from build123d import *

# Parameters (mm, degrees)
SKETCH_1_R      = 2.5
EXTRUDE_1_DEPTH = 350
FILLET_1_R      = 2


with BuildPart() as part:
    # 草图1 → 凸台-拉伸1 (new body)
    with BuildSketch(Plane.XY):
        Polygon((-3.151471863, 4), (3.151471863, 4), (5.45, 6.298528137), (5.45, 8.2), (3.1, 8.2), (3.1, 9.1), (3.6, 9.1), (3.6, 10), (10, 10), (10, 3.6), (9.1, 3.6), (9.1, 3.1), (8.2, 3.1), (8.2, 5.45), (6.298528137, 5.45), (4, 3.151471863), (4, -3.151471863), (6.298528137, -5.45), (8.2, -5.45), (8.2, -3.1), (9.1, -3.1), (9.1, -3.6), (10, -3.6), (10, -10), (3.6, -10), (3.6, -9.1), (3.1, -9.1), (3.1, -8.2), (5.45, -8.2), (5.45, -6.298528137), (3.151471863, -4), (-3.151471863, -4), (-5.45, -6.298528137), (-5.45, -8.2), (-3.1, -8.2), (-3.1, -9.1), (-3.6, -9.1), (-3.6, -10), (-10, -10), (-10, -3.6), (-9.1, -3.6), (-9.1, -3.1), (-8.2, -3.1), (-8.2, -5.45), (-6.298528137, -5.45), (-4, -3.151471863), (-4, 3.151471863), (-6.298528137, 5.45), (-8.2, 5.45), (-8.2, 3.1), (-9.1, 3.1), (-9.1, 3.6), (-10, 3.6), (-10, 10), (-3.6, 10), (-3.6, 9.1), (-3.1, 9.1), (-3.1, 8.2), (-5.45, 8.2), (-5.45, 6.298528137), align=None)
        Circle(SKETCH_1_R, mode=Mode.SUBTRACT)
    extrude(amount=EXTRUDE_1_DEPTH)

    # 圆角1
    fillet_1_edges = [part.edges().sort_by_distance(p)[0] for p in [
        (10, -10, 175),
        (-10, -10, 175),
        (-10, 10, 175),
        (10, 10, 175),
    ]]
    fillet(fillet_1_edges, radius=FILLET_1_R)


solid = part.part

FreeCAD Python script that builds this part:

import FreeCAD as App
import Part
import Sketcher

V = App.Vector


def edges_at(feature, points):
    """Names of the edges that pass closest to the given points."""
    edges = feature.Shape.Edges
    near = lambda p: min(range(len(edges)), key=lambda i: edges[i].distToShape(Part.Vertex(*p))[0])
    return sorted({f"Edge{near(p) + 1}" for p in points})

doc = App.newDocument("Part")
body = doc.addObject("PartDesign::Body", "Body")

sketch1 = doc.addObject("Sketcher::SketchObject", "Sketch")
body.addObject(sketch1)
sketch1.AttachmentSupport = (doc.XY_Plane, [""])
sketch1.MapMode = "FlatFace"
sketch1.addGeometry([
    Part.LineSegment(V(3.2, 4, 0), V(-3.2, 4, 0)),
    Part.LineSegment(V(-3.2, 4, 0), V(-5.5, 6.3, 0)),
    Part.LineSegment(V(-5.5, 6.3, 0), V(-5.5, 8.2, 0)),
    Part.LineSegment(V(-5.5, 8.2, 0), V(-3.1, 8.2, 0)),
    Part.LineSegment(V(-3.1, 8.2, 0), V(-3.1, 9.1, 0)),
    Part.LineSegment(V(-3.1, 9.1, 0), V(-3.6, 9.1, 0)),
    Part.LineSegment(V(-3.6, 9.1, 0), V(-3.6, 10, 0)),
    Part.LineSegment(V(-3.6, 10, 0), V(-10, 10, 0)),
    Part.LineSegment(V(-10, 10, 0), V(-10, 3.6, 0)),
    Part.LineSegment(V(-10, 3.6, 0), V(-9.1, 3.6, 0)),
    Part.LineSegment(V(-9.1, 3.6, 0), V(-9.1, 3.1, 0)),
    Part.LineSegment(V(-9.1, 3.1, 0), V(-8.2, 3.1, 0)),
    Part.LineSegment(V(-8.2, 3.1, 0), V(-8.2, 5.5, 0)),
    Part.LineSegment(V(-8.2, 5.5, 0), V(-6.3, 5.5, 0)),
    Part.LineSegment(V(-6.3, 5.5, 0), V(-4, 3.2, 0)),
    Part.LineSegment(V(-4, 3.2, 0), V(-4, -3.2, 0)),
    Part.LineSegment(V(-4, -3.2, 0), V(-6.3, -5.5, 0)),
    Part.LineSegment(V(-6.3, -5.5, 0), V(-8.2, -5.5, 0)),
    Part.LineSegment(V(-8.2, -5.5, 0), V(-8.2, -3.1, 0)),
    Part.LineSegment(V(-8.2, -3.1, 0), V(-9.1, -3.1, 0)),
    Part.LineSegment(V(-9.1, -3.1, 0), V(-9.1, -3.6, 0)),
    Part.LineSegment(V(-9.1, -3.6, 0), V(-10, -3.6, 0)),
    Part.LineSegment(V(-10, -3.6, 0), V(-10, -10, 0)),
    Part.LineSegment(V(-10, -10, 0), V(-3.6, -10, 0)),
    Part.LineSegment(V(-3.6, -10, 0), V(-3.6, -9.1, 0)),
    Part.LineSegment(V(-3.6, -9.1, 0), V(-3.1, -9.1, 0)),
    Part.LineSegment(V(-3.1, -9.1, 0), V(-3.1, -8.2, 0)),
    Part.LineSegment(V(-3.1, -8.2, 0), V(-5.5, -8.2, 0)),
    Part.LineSegment(V(-5.5, -8.2, 0), V(-5.5, -6.3, 0)),
    Part.LineSegment(V(-5.5, -6.3, 0), V(-3.2, -4, 0)),
    Part.LineSegment(V(-3.2, -4, 0), V(3.2, -4, 0)),
    Part.LineSegment(V(3.2, -4, 0), V(5.5, -6.3, 0)),
    Part.LineSegment(V(5.5, -6.3, 0), V(5.5, -8.2, 0)),
    Part.LineSegment(V(5.5, -8.2, 0), V(3.1, -8.2, 0)),
    Part.LineSegment(V(3.1, -8.2, 0), V(3.1, -9.1, 0)),
    Part.LineSegment(V(3.1, -9.1, 0), V(3.6, -9.1, 0)),
    Part.LineSegment(V(3.6, -9.1, 0), V(3.6, -10, 0)),
    Part.LineSegment(V(3.6, -10, 0), V(10, -10, 0)),
    Part.LineSegment(V(10, -10, 0), V(10, -3.6, 0)),
    Part.LineSegment(V(10, -3.6, 0), V(9.1, -3.6, 0)),
    Part.LineSegment(V(9.1, -3.6, 0), V(9.1, -3.1, 0)),
    Part.LineSegment(V(9.1, -3.1, 0), V(8.2, -3.1, 0)),
    Part.LineSegment(V(8.2, -3.1, 0), V(8.2, -5.5, 0)),
    Part.LineSegment(V(8.2, -5.5, 0), V(6.3, -5.5, 0)),
    Part.LineSegment(V(6.3, -5.5, 0), V(4, -3.2, 0)),
    Part.LineSegment(V(4, -3.2, 0), V(4, 3.2, 0)),
    Part.LineSegment(V(4, 3.2, 0), V(6.3, 5.5, 0)),
    Part.LineSegment(V(6.3, 5.5, 0), V(8.2, 5.5, 0)),
    Part.LineSegment(V(8.2, 5.5, 0), V(8.2, 3.1, 0)),
    Part.LineSegment(V(8.2, 3.1, 0), V(9.1, 3.1, 0)),
    Part.LineSegment(V(9.1, 3.1, 0), V(9.1, 3.6, 0)),
    Part.LineSegment(V(9.1, 3.6, 0), V(10, 3.6, 0)),
    Part.LineSegment(V(10, 3.6, 0), V(10, 10, 0)),
    Part.LineSegment(V(10, 10, 0), V(3.6, 10, 0)),
    Part.LineSegment(V(3.6, 10, 0), V(3.6, 9.1, 0)),
    Part.LineSegment(V(3.6, 9.1, 0), V(3.1, 9.1, 0)),
    Part.LineSegment(V(3.1, 9.1, 0), V(3.1, 8.2, 0)),
    Part.LineSegment(V(3.1, 8.2, 0), V(5.5, 8.2, 0)),
    Part.LineSegment(V(5.5, 8.2, 0), V(5.5, 6.3, 0)),
    Part.LineSegment(V(5.5, 6.3, 0), V(3.2, 4, 0)),
    Part.Circle(V(0, 0, 0), V(0, 0, 1), 2.5),
], False)
sketch1.addConstraint([
    Sketcher.Constraint("Coincident", 0, 2, 1, 1),
    Sketcher.Constraint("Coincident", 1, 2, 2, 1),
    Sketcher.Constraint("Coincident", 2, 2, 3, 1),
    Sketcher.Constraint("Coincident", 3, 2, 4, 1),
    Sketcher.Constraint("Coincident", 4, 2, 5, 1),
    Sketcher.Constraint("Coincident", 5, 2, 6, 1),
    Sketcher.Constraint("Coincident", 6, 2, 7, 1),
    Sketcher.Constraint("Coincident", 7, 2, 8, 1),
    Sketcher.Constraint("Coincident", 8, 2, 9, 1),
    Sketcher.Constraint("Coincident", 9, 2, 10, 1),
    Sketcher.Constraint("Coincident", 10, 2, 11, 1),
    Sketcher.Constraint("Coincident", 11, 2, 12, 1),
    Sketcher.Constraint("Coincident", 12, 2, 13, 1),
    Sketcher.Constraint("Coincident", 13, 2, 14, 1),
    Sketcher.Constraint("Coincident", 14, 2, 15, 1),
    Sketcher.Constraint("Coincident", 15, 2, 16, 1),
    Sketcher.Constraint("Coincident", 16, 2, 17, 1),
    Sketcher.Constraint("Coincident", 17, 2, 18, 1),
    Sketcher.Constraint("Coincident", 18, 2, 19, 1),
    Sketcher.Constraint("Coincident", 19, 2, 20, 1),
    Sketcher.Constraint("Coincident", 20, 2, 21, 1),
    Sketcher.Constraint("Coincident", 21, 2, 22, 1),
    Sketcher.Constraint("Coincident", 22, 2, 23, 1),
    Sketcher.Constraint("Coincident", 23, 2, 24, 1),
    Sketcher.Constraint("Coincident", 24, 2, 25, 1),
    Sketcher.Constraint("Coincident", 25, 2, 26, 1),
    Sketcher.Constraint("Coincident", 26, 2, 27, 1),
    Sketcher.Constraint("Coincident", 27, 2, 28, 1),
    Sketcher.Constraint("Coincident", 28, 2, 29, 1),
    Sketcher.Constraint("Coincident", 29, 2, 30, 1),
    Sketcher.Constraint("Coincident", 30, 2, 31, 1),
    Sketcher.Constraint("Coincident", 31, 2, 32, 1),
    Sketcher.Constraint("Coincident", 32, 2, 33, 1),
    Sketcher.Constraint("Coincident", 33, 2, 34, 1),
    Sketcher.Constraint("Coincident", 34, 2, 35, 1),
    Sketcher.Constraint("Coincident", 35, 2, 36, 1),
    Sketcher.Constraint("Coincident", 36, 2, 37, 1),
    Sketcher.Constraint("Coincident", 37, 2, 38, 1),
    Sketcher.Constraint("Coincident", 38, 2, 39, 1),
    Sketcher.Constraint("Coincident", 39, 2, 40, 1),
    Sketcher.Constraint("Coincident", 40, 2, 41, 1),
    Sketcher.Constraint("Coincident", 41, 2, 42, 1),
    Sketcher.Constraint("Coincident", 42, 2, 43, 1),
    Sketcher.Constraint("Coincident", 43, 2, 44, 1),
    Sketcher.Constraint("Coincident", 44, 2, 45, 1),
    Sketcher.Constraint("Coincident", 45, 2, 46, 1),
    Sketcher.Constraint("Coincident", 46, 2, 47, 1),
    Sketcher.Constraint("Coincident", 47, 2, 48, 1),
    Sketcher.Constraint("Coincident", 48, 2, 49, 1),
    Sketcher.Constraint("Coincident", 49, 2, 50, 1),
    Sketcher.Constraint("Coincident", 50, 2, 51, 1),
    Sketcher.Constraint("Coincident", 51, 2, 52, 1),
    Sketcher.Constraint("Coincident", 52, 2, 53, 1),
    Sketcher.Constraint("Coincident", 53, 2, 54, 1),
    Sketcher.Constraint("Coincident", 54, 2, 55, 1),
    Sketcher.Constraint("Coincident", 55, 2, 56, 1),
    Sketcher.Constraint("Coincident", 56, 2, 57, 1),
    Sketcher.Constraint("Coincident", 57, 2, 58, 1),
    Sketcher.Constraint("Coincident", 58, 2, 59, 1),
    Sketcher.Constraint("Coincident", 59, 2, 0, 1),
    Sketcher.Constraint("Horizontal", 0),
    Sketcher.Constraint("Vertical", 2),
    Sketcher.Constraint("Horizontal", 3),
    Sketcher.Constraint("Vertical", 4),
    Sketcher.Constraint("Horizontal", 5),
    Sketcher.Constraint("Vertical", 6),
    Sketcher.Constraint("Horizontal", 7),
    Sketcher.Constraint("Vertical", 8),
    Sketcher.Constraint("Horizontal", 9),
    Sketcher.Constraint("Vertical", 10),
    Sketcher.Constraint("Horizontal", 11),
    Sketcher.Constraint("Vertical", 12),
    Sketcher.Constraint("Horizontal", 13),
    Sketcher.Constraint("Vertical", 15),
    Sketcher.Constraint("Horizontal", 17),
    Sketcher.Constraint("Vertical", 18),
    Sketcher.Constraint("Horizontal", 19),
    Sketcher.Constraint("Vertical", 20),
    Sketcher.Constraint("Horizontal", 21),
    Sketcher.Constraint("Vertical", 22),
    Sketcher.Constraint("Horizontal", 23),
    Sketcher.Constraint("Vertical", 24),
    Sketcher.Constraint("Horizontal", 25),
    Sketcher.Constraint("Vertical", 26),
    Sketcher.Constraint("Horizontal", 27),
    Sketcher.Constraint("Vertical", 28),
    Sketcher.Constraint("Horizontal", 30),
    Sketcher.Constraint("Vertical", 32),
    Sketcher.Constraint("Horizontal", 33),
    Sketcher.Constraint("Vertical", 34),
    Sketcher.Constraint("Horizontal", 35),
    Sketcher.Constraint("Vertical", 36),
    Sketcher.Constraint("Horizontal", 37),
    Sketcher.Constraint("Vertical", 38),
    Sketcher.Constraint("Horizontal", 39),
    Sketcher.Constraint("Vertical", 40),
    Sketcher.Constraint("Horizontal", 41),
    Sketcher.Constraint("Vertical", 42),
    Sketcher.Constraint("Horizontal", 43),
    Sketcher.Constraint("Vertical", 45),
    Sketcher.Constraint("Horizontal", 47),
    Sketcher.Constraint("Vertical", 48),
    Sketcher.Constraint("Horizontal", 49),
    Sketcher.Constraint("Vertical", 50),
    Sketcher.Constraint("Horizontal", 51),
    Sketcher.Constraint("Vertical", 52),
    Sketcher.Constraint("Horizontal", 53),
    Sketcher.Constraint("Vertical", 54),
    Sketcher.Constraint("Horizontal", 55),
    Sketcher.Constraint("Vertical", 56),
    Sketcher.Constraint("Horizontal", 57),
    Sketcher.Constraint("Vertical", 58),
    Sketcher.Constraint("Coincident", 60, 3, -1, 1),
    Sketcher.Constraint("Symmetric", 0, 2, 30, 2, -1, 1),
    Sketcher.Constraint("Symmetric", 1, 2, 31, 2, -1, 1),
    Sketcher.Constraint("Symmetric", 3, 2, 33, 2, -1, 1),
    Sketcher.Constraint("Symmetric", 5, 2, 35, 2, -1, 1),
    Sketcher.Constraint("Symmetric", 7, 2, 37, 2, -1, 1),
    Sketcher.Constraint("Symmetric", 9, 2, 39, 2, -1, 1),
    Sketcher.Constraint("Symmetric", 11, 2, 41, 2, -1, 1),
    Sketcher.Constraint("Symmetric", 13, 2, 43, 2, -1, 1),
    Sketcher.Constraint("Symmetric", 14, 2, 44, 2, -1, 1),
    Sketcher.Constraint("Symmetric", 16, 2, 46, 2, -1, 1),
    Sketcher.Constraint("Symmetric", 18, 2, 48, 2, -1, 1),
    Sketcher.Constraint("Symmetric", 20, 2, 50, 2, -1, 1),
    Sketcher.Constraint("Symmetric", 22, 2, 52, 2, -1, 1),
    Sketcher.Constraint("Symmetric", 24, 2, 54, 2, -1, 1),
    Sketcher.Constraint("Symmetric", 26, 2, 56, 2, -1, 1),
    Sketcher.Constraint("Symmetric", 28, 2, 58, 2, -1, 1),
    Sketcher.Constraint("Symmetric", 28, 2, 31, 2, -2),
    Sketcher.Constraint("Symmetric", 26, 2, 33, 2, -2),
    Sketcher.Constraint("Symmetric", 24, 2, 35, 2, -2),
    Sketcher.Constraint("Symmetric", 22, 2, 37, 2, -2),
    Sketcher.Constraint("Symmetric", 20, 2, 39, 2, -2),
    Sketcher.Constraint("Symmetric", 18, 2, 41, 2, -2),
    Sketcher.Constraint("Symmetric", 16, 2, 43, 2, -2),
    Sketcher.Constraint("Parallel", 1, 14),
    Sketcher.Constraint("Perpendicular", 14, 16),
    Sketcher.Constraint("Parallel", 16, 29),
    Sketcher.Constraint("Perpendicular", 44, 46),
    Sketcher.Constraint("Parallel", 46, 59),
    Sketcher.Constraint("Horizontal", 15, 2, 44, 2),
    Sketcher.Constraint("Equal", 9, 11),
    Sketcher.Constraint("Equal", 47, 2),
    Sketcher.Constraint("Equal", 51, 4),
    Sketcher.Constraint("Equal", 4, 6),
    Sketcher.Constraint("Equal", 53, 8),
    Sketcher.Constraint("Equal", 55, 10),
    Sketcher.Constraint("Equal", 57, 12),
    Sketcher.Constraint("Equal", 30, 15),
    Sketcher.Constraint("Equal", 1, 14),
    Sketcher.Constraint("Diameter", 60, 5.0),
    Sketcher.Constraint("DistanceX", 5, 2, 5, 1, 0.5),
    Sketcher.Constraint("DistanceX", 7, 2, 7, 1, 6.4),
    Sketcher.Constraint("DistanceX", 9, 1, 9, 2, 0.9),
    Sketcher.Constraint("DistanceY", -1, 1, 0, 2, 4.0),
    Sketcher.Constraint("DistanceY", -1, 1, 6, 2, 10.0),
    Sketcher.Constraint("DistanceX", 3, 1, 3, 2, 2.35),
    Sketcher.Constraint("DistanceX", 13, 1, 13, 2, 1.901472),
])
pad1 = doc.addObject("PartDesign::Pad", "Pad")
body.addObject(pad1)
pad1.Profile = sketch1
pad1.Length = 350
doc.recompute()

fillet = doc.addObject("PartDesign::Fillet", "Fillet")
body.addObject(fillet)
fillet.Base = (pad1, edges_at(pad1, [
    (10, -10, 175),
    (-10, -10, 175),
    (-10, 10, 175),
    (10, 10, 175),
]))
fillet.Radius = 2

doc.recompute()
